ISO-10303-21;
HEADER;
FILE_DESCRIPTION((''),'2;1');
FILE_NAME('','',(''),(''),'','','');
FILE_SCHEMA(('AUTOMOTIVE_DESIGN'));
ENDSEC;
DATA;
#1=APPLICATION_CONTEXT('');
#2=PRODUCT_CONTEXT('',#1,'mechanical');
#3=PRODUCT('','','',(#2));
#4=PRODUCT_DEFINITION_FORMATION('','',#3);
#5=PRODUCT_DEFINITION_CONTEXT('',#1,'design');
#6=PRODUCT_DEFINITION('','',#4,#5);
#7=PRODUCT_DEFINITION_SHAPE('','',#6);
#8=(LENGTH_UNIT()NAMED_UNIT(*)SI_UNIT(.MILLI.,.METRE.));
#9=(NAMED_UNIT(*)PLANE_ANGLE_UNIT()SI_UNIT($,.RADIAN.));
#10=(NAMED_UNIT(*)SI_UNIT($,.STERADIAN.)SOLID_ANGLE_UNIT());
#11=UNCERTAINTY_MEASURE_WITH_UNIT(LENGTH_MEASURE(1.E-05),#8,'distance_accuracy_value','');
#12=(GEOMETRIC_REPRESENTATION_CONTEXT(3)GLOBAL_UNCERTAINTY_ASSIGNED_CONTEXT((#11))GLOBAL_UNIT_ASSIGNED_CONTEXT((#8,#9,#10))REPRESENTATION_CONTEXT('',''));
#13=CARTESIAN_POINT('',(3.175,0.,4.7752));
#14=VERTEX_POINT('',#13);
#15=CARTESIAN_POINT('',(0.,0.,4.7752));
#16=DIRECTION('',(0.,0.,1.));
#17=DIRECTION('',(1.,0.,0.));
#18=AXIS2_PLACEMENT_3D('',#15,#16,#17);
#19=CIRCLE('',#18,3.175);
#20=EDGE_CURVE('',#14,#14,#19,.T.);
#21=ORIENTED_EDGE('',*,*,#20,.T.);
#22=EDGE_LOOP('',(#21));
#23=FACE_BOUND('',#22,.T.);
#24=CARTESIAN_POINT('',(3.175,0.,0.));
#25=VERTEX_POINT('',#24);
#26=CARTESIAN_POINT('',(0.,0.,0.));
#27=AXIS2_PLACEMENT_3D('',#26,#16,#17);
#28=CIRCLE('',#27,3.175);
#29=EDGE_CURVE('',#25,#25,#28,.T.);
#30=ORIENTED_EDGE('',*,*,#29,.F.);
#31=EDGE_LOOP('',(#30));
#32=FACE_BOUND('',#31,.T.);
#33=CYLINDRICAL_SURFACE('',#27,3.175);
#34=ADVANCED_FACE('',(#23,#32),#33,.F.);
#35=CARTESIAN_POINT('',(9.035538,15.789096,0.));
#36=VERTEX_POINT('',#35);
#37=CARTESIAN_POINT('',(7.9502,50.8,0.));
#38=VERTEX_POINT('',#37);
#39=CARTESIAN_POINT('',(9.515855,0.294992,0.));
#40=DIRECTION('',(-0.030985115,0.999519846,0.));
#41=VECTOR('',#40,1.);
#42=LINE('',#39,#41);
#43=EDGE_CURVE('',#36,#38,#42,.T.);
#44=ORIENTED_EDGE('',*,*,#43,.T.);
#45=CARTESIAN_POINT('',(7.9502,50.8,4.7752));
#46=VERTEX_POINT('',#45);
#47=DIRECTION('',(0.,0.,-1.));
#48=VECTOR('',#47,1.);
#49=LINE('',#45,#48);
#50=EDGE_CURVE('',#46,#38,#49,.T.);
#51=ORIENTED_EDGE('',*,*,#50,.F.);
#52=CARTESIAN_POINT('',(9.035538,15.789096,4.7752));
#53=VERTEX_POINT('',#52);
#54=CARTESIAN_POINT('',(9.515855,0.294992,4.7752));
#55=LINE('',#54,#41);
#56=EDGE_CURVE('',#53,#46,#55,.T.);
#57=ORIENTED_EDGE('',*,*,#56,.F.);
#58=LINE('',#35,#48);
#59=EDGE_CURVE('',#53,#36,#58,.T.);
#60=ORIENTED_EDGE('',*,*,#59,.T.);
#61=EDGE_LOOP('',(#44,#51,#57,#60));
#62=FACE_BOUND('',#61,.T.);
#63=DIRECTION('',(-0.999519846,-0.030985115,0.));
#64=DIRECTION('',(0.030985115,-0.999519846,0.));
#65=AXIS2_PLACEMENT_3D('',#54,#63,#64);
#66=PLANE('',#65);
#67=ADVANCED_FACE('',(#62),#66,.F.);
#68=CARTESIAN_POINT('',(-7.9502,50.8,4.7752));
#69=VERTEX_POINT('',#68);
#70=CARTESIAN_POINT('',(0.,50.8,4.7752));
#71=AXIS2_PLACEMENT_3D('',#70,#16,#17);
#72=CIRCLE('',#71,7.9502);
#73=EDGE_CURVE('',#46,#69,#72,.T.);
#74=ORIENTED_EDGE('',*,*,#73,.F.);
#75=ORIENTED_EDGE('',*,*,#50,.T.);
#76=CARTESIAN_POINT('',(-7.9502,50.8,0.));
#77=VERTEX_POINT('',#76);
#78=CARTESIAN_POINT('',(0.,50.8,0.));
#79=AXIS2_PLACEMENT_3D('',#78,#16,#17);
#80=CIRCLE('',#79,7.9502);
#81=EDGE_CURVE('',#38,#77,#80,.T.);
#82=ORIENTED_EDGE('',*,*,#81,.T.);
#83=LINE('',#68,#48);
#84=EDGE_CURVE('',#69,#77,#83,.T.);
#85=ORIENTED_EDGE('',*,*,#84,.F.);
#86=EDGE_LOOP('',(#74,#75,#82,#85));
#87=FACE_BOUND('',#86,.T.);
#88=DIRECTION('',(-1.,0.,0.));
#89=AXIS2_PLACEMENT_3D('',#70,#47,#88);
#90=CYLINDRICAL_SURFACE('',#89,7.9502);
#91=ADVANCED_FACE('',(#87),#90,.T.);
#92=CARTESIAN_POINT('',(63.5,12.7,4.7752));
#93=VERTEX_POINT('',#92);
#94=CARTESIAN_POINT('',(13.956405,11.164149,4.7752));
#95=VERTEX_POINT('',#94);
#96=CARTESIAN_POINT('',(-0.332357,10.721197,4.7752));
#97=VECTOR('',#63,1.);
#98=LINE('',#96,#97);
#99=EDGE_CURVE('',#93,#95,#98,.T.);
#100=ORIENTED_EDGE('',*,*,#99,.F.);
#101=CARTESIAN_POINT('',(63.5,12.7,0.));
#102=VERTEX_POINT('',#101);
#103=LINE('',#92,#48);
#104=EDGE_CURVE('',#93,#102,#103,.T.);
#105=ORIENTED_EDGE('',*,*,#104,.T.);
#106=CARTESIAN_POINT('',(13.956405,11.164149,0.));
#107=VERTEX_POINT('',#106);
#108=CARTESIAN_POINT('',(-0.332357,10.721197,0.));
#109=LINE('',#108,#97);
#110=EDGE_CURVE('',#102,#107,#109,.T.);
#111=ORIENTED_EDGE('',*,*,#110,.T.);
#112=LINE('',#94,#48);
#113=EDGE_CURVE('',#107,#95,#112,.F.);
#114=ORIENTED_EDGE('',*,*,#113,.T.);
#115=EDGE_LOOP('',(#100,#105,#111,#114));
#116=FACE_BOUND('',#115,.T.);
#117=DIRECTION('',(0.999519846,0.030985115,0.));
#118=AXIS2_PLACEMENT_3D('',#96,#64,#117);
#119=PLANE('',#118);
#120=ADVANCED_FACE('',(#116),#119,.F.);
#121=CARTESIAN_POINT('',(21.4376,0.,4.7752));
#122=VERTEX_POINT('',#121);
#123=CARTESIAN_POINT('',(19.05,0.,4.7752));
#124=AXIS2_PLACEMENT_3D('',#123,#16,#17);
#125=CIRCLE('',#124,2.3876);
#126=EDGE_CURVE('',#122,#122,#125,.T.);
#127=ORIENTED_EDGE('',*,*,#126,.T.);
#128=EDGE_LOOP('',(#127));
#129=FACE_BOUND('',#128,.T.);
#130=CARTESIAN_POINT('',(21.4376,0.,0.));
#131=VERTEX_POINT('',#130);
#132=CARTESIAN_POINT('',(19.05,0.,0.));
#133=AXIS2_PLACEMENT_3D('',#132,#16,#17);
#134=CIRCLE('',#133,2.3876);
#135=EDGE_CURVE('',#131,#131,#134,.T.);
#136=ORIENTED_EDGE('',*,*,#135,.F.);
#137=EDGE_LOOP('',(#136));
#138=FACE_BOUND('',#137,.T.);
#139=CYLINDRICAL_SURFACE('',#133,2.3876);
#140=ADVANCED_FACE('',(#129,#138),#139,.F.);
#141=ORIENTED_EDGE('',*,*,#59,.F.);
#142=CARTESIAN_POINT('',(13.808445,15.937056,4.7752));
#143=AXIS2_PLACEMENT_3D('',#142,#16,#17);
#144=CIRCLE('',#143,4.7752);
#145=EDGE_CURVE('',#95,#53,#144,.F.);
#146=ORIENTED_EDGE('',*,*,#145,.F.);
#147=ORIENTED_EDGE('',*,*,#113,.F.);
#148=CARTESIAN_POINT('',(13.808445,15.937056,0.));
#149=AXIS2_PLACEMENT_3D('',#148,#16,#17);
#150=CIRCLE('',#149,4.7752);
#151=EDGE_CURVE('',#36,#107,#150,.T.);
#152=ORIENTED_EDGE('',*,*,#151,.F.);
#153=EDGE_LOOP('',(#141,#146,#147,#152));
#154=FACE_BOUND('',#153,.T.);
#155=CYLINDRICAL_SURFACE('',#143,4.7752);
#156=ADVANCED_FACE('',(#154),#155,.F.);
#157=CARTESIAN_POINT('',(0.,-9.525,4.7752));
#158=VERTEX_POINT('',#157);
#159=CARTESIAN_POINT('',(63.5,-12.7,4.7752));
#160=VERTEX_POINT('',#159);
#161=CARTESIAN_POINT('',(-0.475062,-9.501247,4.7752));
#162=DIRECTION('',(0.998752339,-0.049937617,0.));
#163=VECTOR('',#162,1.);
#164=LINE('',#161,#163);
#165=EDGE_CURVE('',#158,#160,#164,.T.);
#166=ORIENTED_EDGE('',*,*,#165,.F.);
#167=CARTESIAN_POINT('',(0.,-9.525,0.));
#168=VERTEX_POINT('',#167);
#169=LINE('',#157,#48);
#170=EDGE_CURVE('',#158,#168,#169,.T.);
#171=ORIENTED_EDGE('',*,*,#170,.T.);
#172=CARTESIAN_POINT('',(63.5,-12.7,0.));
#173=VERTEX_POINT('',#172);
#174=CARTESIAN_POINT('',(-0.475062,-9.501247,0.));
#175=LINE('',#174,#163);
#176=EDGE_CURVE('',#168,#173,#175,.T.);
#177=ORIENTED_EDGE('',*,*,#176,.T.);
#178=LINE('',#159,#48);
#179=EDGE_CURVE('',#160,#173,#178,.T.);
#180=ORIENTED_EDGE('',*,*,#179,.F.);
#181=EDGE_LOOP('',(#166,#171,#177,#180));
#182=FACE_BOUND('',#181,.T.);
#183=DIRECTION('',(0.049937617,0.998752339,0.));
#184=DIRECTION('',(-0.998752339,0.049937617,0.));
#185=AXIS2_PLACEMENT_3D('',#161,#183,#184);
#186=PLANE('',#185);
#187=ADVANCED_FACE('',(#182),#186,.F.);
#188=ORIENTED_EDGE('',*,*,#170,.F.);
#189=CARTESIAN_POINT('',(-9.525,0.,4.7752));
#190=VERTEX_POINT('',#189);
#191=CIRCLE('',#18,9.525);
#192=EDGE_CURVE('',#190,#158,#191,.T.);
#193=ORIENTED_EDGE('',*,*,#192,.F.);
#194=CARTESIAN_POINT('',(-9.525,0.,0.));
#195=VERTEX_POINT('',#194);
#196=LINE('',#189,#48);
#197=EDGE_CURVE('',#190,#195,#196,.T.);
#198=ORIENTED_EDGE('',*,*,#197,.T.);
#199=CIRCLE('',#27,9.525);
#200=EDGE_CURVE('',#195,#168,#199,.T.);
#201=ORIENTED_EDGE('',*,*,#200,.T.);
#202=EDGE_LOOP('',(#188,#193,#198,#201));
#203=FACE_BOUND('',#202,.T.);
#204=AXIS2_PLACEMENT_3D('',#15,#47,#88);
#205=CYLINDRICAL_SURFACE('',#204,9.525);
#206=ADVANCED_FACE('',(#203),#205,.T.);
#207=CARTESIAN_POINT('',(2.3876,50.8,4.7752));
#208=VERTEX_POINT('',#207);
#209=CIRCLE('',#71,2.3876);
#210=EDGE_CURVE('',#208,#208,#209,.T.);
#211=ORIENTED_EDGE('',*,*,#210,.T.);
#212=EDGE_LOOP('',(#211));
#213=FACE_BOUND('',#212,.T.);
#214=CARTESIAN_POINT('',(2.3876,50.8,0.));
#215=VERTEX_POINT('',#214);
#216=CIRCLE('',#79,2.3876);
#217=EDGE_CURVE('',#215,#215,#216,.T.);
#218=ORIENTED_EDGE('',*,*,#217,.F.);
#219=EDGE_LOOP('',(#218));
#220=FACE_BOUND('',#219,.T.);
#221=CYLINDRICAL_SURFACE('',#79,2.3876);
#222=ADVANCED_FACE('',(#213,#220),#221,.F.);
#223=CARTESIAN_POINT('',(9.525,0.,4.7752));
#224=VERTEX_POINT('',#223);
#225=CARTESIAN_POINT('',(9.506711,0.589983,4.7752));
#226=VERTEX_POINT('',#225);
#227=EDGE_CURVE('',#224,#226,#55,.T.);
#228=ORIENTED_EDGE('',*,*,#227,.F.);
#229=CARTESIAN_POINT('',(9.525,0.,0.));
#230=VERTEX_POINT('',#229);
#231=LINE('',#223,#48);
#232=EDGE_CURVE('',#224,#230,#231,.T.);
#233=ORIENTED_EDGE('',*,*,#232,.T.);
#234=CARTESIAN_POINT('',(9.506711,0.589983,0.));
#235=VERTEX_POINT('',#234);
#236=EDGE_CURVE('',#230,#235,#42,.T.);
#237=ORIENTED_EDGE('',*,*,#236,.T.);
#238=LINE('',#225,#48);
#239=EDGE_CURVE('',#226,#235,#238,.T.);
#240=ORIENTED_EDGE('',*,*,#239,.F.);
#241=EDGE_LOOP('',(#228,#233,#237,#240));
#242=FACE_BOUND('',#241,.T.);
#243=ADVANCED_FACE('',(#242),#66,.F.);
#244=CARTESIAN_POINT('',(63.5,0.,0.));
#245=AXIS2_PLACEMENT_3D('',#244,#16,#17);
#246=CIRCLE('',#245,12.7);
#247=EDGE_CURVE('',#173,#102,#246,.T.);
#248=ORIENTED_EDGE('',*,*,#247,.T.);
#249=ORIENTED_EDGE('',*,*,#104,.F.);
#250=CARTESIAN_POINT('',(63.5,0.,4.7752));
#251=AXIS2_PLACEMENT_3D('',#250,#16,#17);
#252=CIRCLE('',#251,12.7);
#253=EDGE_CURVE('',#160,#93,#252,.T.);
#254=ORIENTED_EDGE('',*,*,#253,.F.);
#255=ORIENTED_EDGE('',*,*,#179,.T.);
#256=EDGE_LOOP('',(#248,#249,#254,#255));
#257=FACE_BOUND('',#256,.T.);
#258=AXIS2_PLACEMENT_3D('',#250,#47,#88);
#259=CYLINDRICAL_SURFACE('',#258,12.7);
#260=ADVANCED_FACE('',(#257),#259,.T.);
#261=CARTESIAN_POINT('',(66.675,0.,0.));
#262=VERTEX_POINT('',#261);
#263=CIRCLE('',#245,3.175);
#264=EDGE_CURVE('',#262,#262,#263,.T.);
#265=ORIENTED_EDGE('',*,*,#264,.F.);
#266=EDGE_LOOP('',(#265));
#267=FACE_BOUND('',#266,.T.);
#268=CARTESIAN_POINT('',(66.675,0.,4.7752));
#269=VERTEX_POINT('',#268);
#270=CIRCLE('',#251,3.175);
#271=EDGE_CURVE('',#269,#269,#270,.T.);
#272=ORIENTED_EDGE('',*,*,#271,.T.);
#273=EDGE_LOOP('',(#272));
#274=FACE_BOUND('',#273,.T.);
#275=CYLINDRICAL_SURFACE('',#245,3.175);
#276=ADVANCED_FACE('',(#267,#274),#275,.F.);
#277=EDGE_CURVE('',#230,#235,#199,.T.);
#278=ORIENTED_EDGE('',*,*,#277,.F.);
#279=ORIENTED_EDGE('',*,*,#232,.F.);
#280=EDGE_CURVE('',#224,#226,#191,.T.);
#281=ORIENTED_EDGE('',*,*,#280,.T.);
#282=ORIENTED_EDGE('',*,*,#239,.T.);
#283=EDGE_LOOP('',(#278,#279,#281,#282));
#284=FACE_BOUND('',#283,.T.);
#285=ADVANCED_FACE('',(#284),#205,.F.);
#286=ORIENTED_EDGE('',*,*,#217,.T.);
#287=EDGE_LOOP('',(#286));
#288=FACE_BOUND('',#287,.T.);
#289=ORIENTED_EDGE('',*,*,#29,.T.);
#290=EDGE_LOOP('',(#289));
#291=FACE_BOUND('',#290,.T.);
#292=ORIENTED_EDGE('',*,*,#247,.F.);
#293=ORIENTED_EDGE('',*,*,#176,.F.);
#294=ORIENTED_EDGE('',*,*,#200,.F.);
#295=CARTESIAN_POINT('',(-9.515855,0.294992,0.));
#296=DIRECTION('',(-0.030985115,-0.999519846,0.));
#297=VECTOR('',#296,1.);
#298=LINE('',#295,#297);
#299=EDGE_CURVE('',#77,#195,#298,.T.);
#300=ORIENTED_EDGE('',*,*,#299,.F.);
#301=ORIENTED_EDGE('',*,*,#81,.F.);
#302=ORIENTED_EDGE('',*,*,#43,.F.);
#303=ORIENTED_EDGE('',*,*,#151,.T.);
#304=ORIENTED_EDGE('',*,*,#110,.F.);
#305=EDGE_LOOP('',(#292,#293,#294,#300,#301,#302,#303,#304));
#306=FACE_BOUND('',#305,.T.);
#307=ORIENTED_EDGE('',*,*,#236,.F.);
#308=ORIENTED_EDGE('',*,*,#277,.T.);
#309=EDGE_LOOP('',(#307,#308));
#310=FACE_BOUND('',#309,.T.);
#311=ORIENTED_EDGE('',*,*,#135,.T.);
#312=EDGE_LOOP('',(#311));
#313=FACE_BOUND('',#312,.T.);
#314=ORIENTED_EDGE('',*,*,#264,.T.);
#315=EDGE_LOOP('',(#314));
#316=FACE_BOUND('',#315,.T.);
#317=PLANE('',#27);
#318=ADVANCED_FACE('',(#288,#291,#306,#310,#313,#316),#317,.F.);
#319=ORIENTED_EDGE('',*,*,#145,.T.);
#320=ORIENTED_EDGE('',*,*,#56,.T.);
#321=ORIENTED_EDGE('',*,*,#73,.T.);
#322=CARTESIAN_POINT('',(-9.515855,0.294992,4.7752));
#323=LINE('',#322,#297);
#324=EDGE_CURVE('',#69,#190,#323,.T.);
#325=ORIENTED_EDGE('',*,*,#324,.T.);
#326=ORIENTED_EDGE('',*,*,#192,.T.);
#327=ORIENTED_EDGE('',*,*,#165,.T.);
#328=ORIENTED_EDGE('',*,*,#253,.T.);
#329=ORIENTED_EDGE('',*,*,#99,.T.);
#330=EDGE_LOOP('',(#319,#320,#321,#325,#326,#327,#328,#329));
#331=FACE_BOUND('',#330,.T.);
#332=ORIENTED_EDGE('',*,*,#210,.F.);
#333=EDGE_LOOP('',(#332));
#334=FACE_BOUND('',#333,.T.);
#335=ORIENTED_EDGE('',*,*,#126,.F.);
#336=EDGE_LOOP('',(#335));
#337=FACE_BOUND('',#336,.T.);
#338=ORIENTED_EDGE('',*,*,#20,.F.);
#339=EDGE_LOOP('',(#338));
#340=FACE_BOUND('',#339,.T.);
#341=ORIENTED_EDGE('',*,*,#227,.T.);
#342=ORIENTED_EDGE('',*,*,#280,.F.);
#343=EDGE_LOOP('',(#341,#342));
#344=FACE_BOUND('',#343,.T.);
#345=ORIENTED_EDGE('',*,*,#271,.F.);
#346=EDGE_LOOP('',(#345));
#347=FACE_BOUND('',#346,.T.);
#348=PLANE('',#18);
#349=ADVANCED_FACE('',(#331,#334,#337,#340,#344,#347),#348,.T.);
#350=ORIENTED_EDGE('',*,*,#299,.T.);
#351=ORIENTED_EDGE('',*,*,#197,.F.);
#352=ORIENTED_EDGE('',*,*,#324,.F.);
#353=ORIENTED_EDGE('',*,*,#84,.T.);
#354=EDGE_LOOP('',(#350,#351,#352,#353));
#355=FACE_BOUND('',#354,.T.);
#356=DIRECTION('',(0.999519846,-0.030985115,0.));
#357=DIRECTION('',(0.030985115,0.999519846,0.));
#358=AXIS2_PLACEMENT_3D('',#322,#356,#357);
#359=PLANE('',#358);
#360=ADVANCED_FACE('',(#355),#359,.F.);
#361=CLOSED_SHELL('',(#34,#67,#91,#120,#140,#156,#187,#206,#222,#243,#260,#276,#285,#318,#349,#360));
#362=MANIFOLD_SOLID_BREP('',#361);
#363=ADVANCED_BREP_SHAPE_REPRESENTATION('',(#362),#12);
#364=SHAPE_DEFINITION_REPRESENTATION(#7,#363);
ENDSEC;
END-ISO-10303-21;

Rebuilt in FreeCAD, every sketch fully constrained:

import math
import FreeCAD as App
import Part
import Sketcher
from FreeCAD import Vector
Q = App.Units.Quantity


def edges_at(feature, points):
    """Names of the edges that pass closest to the given points."""
    edges = feature.Shape.Edges
    near = lambda p: min(range(len(edges)), key=lambda i: edges[i].distToShape(Part.Vertex(*p))[0])
    return sorted({f"Edge{near(p) + 1}" for p in points})

doc = App.newDocument("Part")
body = doc.addObject("PartDesign::Body", "Body")

# Sketch on XY plane
sketch1 = doc.addObject("Sketcher::SketchObject", "Sketch")
body.addObject(sketch1)
sketch1.AttachmentSupport = (doc.XY_Plane, [""])
sketch1.MapMode = "FlatFace"
sketch1.addGeometry([
    Part.ArcOfCircle(Part.Circle(Vector(0, 50.8, 0), Vector(0, 0, 1), 8), math.radians(0), math.radians(180)),  # 0
    Part.LineSegment(Vector(-8, 50.8, 0), Vector(-9.5, 0.6, 0)),  # 1
    Part.LineSegment(Vector(-9.5, 0.6, 0), Vector(-9.5, 0, 0)),  # 2
    Part.ArcOfCircle(Part.Circle(Vector(0, 0, 0), Vector(0, 0, 1), 9.5), math.radians(180), math.radians(270)),  # 3
    Part.LineSegment(Vector(0, -9.5, 0), Vector(62.2, -12.6, 0)),  # 4
    Part.LineSegment(Vector(62.2, -12.6, 0), Vector(63.5, -12.7, 0)),  # 5
    Part.ArcOfCircle(Part.Circle(Vector(63.5, 0, 0), Vector(0, 0, 1), 12.7), math.radians(-90), math.radians(90)),  # 6
    Part.LineSegment(Vector(63.5, 12.7, 0), Vector(62.7, 12.7, 0)),  # 7
    Part.LineSegment(Vector(62.7, 12.7, 0), Vector(9.2, 11, 0)),  # 8
    Part.LineSegment(Vector(9.2, 11, 0), Vector(8, 50.8, 0)),  # 9
    Part.LineSegment(Vector(9.5, 0, 0), Vector(9.5, 0.6, 0)),  # 10
    Part.ArcOfCircle(Part.Circle(Vector(0, 0, 0), Vector(0, 0, 1), 9.5), math.radians(0), math.radians(3.55)),  # 11
], False)
sketch1.addConstraint([
    Sketcher.Constraint("Coincident", 0, 2, 1, 1),
    Sketcher.Constraint("Coincident", 1, 2, 2, 1),
    Sketcher.Constraint("Coincident", 2, 2, 3, 1),
    Sketcher.Constraint("Coincident", 3, 2, 4, 1),
    Sketcher.Constraint("Coincident", 4, 2, 5, 1),
    Sketcher.Constraint("Coincident", 5, 2, 6, 1),
    Sketcher.Constraint("Coincident", 6, 2, 7, 1),
    Sketcher.Constraint("Coincident", 7, 2, 8, 1),
    Sketcher.Constraint("Coincident", 8, 2, 9, 1),
    Sketcher.Constraint("Coincident", 9, 2, 0, 1),
    Sketcher.Constraint("Coincident", 10, 1, 11, 1),
    Sketcher.Constraint("Coincident", 11, 2, 10, 2),
    Sketcher.Constraint("Coincident", 3, 3, -1, 1),
    Sketcher.Constraint("Coincident", 11, 3, -1, 1),
    Sketcher.Constraint("Equal", 3, 11),
    Sketcher.Constraint("Symmetric", 0, 2, 9, 2, -2),
    Sketcher.Constraint("Symmetric", 1, 2, 11, 2, -2),
    Sketcher.Constraint("Symmetric", 5, 2, 6, 2, -1),
    Sketcher.Constraint("PointOnObject", 2, 2, -1),
    Sketcher.Constraint("PointOnObject", 3, 2, -2),
    Sketcher.Constraint("PointOnObject", 10, 1, -1),
    Sketcher.Constraint("Parallel", 1, 2),
    Sketcher.Constraint("Parallel", 4, 5),
    Sketcher.Constraint("Parallel", 7, 8),
    Sketcher.Constraint("Perpendicular", 8, 9),
    Sketcher.Constraint("Parallel", 9, 10),
    Sketcher.Constraint("Vertical", 6, 3, 5, 2),
    Sketcher.Constraint("Radius", 6, Q("0.5 in")),
    Sketcher.Constraint("DistanceY", -1, 1, 0, 3, Q("2 in")),
    Sketcher.Constraint("DistanceY", -1, 1, 0, 2, Q("2 in")),
    Sketcher.Constraint("Radius", 0, Q("0.313 in")),
    Sketcher.Constraint("Radius", 3, Q("0.375 in")),
    Sketcher.Constraint("DistanceX", -1, 1, 6, 3, Q("2.5 in")),
    Sketcher.Constraint("Distance", 4, Q("62.31091 mm")),
    Sketcher.Constraint("Distance", 7, Q("0.787022 mm")),
])
pad1 = doc.addObject("PartDesign::Pad", "Pad")
body.addObject(pad1)
pad1.Profile = sketch1
pad1.Length = Q("0.188 in")
doc.recompute()

fillet = doc.addObject("PartDesign::Fillet", "Fillet")
body.addObject(fillet)
fillet.Base = (pad1, edges_at(pad1, [(9.183, 11.016, 2.388)]))
fillet.Radius = Q("0.188 in")

# Sketch on XY plane
sketch2 = doc.addObject("Sketcher::SketchObject", "Sketch001")
body.addObject(sketch2)
sketch2.AttachmentSupport = (doc.XY_Plane, [""])
sketch2.MapMode = "FlatFace"
sketch2.AttachmentOffset = App.Placement(Vector(0, 0, 0.188 * 25.4), App.Rotation())
sketch2.addGeometry([
    Part.Circle(Vector(0, 0, 0), Vector(0, 0, 1), 3.2),
    Part.Circle(Vector(0, 50.8, 0), Vector(0, 0, 1), 2.4),
    Part.Circle(Vector(19.1, 0, 0), Vector(0, 0, 1), 2.4),
    Part.Circle(Vector(63.5, 0, 0), Vector(0, 0, 1), 3.2),
], False)
sketch2.addConstraint([
    Sketcher.Constraint("Coincident", 0, 3, -1, 1),
    Sketcher.Constraint("Equal", 1, 2),
    Sketcher.Constraint("Equal", 0, 3),
    Sketcher.Constraint("PointOnObject", 1, 3, -2),
    Sketcher.Constraint("PointOnObject", 2, 3, -1),
    Sketcher.Constraint("PointOnObject", 3, 3, -1),
    Sketcher.Constraint("Diameter", 0, Q("0.25 in")),
    Sketcher.Constraint("Diameter", 1, Q("0.188 in")),
    Sketcher.Constraint("DistanceY", -1, 1, 1, 3, Q("2 in")),
    Sketcher.Constraint("DistanceX", -1, 1, 3, 3, Q("2.5 in")),
    Sketcher.Constraint("DistanceX", -1, 1, 2, 3, Q("0.75 in")),
])
pocket1 = doc.addObject("PartDesign::Pocket", "Pocket")
body.addObject(pocket1)
pocket1.Profile = sketch2
pocket1.Length = Q("0.188 in")

doc.recompute()
